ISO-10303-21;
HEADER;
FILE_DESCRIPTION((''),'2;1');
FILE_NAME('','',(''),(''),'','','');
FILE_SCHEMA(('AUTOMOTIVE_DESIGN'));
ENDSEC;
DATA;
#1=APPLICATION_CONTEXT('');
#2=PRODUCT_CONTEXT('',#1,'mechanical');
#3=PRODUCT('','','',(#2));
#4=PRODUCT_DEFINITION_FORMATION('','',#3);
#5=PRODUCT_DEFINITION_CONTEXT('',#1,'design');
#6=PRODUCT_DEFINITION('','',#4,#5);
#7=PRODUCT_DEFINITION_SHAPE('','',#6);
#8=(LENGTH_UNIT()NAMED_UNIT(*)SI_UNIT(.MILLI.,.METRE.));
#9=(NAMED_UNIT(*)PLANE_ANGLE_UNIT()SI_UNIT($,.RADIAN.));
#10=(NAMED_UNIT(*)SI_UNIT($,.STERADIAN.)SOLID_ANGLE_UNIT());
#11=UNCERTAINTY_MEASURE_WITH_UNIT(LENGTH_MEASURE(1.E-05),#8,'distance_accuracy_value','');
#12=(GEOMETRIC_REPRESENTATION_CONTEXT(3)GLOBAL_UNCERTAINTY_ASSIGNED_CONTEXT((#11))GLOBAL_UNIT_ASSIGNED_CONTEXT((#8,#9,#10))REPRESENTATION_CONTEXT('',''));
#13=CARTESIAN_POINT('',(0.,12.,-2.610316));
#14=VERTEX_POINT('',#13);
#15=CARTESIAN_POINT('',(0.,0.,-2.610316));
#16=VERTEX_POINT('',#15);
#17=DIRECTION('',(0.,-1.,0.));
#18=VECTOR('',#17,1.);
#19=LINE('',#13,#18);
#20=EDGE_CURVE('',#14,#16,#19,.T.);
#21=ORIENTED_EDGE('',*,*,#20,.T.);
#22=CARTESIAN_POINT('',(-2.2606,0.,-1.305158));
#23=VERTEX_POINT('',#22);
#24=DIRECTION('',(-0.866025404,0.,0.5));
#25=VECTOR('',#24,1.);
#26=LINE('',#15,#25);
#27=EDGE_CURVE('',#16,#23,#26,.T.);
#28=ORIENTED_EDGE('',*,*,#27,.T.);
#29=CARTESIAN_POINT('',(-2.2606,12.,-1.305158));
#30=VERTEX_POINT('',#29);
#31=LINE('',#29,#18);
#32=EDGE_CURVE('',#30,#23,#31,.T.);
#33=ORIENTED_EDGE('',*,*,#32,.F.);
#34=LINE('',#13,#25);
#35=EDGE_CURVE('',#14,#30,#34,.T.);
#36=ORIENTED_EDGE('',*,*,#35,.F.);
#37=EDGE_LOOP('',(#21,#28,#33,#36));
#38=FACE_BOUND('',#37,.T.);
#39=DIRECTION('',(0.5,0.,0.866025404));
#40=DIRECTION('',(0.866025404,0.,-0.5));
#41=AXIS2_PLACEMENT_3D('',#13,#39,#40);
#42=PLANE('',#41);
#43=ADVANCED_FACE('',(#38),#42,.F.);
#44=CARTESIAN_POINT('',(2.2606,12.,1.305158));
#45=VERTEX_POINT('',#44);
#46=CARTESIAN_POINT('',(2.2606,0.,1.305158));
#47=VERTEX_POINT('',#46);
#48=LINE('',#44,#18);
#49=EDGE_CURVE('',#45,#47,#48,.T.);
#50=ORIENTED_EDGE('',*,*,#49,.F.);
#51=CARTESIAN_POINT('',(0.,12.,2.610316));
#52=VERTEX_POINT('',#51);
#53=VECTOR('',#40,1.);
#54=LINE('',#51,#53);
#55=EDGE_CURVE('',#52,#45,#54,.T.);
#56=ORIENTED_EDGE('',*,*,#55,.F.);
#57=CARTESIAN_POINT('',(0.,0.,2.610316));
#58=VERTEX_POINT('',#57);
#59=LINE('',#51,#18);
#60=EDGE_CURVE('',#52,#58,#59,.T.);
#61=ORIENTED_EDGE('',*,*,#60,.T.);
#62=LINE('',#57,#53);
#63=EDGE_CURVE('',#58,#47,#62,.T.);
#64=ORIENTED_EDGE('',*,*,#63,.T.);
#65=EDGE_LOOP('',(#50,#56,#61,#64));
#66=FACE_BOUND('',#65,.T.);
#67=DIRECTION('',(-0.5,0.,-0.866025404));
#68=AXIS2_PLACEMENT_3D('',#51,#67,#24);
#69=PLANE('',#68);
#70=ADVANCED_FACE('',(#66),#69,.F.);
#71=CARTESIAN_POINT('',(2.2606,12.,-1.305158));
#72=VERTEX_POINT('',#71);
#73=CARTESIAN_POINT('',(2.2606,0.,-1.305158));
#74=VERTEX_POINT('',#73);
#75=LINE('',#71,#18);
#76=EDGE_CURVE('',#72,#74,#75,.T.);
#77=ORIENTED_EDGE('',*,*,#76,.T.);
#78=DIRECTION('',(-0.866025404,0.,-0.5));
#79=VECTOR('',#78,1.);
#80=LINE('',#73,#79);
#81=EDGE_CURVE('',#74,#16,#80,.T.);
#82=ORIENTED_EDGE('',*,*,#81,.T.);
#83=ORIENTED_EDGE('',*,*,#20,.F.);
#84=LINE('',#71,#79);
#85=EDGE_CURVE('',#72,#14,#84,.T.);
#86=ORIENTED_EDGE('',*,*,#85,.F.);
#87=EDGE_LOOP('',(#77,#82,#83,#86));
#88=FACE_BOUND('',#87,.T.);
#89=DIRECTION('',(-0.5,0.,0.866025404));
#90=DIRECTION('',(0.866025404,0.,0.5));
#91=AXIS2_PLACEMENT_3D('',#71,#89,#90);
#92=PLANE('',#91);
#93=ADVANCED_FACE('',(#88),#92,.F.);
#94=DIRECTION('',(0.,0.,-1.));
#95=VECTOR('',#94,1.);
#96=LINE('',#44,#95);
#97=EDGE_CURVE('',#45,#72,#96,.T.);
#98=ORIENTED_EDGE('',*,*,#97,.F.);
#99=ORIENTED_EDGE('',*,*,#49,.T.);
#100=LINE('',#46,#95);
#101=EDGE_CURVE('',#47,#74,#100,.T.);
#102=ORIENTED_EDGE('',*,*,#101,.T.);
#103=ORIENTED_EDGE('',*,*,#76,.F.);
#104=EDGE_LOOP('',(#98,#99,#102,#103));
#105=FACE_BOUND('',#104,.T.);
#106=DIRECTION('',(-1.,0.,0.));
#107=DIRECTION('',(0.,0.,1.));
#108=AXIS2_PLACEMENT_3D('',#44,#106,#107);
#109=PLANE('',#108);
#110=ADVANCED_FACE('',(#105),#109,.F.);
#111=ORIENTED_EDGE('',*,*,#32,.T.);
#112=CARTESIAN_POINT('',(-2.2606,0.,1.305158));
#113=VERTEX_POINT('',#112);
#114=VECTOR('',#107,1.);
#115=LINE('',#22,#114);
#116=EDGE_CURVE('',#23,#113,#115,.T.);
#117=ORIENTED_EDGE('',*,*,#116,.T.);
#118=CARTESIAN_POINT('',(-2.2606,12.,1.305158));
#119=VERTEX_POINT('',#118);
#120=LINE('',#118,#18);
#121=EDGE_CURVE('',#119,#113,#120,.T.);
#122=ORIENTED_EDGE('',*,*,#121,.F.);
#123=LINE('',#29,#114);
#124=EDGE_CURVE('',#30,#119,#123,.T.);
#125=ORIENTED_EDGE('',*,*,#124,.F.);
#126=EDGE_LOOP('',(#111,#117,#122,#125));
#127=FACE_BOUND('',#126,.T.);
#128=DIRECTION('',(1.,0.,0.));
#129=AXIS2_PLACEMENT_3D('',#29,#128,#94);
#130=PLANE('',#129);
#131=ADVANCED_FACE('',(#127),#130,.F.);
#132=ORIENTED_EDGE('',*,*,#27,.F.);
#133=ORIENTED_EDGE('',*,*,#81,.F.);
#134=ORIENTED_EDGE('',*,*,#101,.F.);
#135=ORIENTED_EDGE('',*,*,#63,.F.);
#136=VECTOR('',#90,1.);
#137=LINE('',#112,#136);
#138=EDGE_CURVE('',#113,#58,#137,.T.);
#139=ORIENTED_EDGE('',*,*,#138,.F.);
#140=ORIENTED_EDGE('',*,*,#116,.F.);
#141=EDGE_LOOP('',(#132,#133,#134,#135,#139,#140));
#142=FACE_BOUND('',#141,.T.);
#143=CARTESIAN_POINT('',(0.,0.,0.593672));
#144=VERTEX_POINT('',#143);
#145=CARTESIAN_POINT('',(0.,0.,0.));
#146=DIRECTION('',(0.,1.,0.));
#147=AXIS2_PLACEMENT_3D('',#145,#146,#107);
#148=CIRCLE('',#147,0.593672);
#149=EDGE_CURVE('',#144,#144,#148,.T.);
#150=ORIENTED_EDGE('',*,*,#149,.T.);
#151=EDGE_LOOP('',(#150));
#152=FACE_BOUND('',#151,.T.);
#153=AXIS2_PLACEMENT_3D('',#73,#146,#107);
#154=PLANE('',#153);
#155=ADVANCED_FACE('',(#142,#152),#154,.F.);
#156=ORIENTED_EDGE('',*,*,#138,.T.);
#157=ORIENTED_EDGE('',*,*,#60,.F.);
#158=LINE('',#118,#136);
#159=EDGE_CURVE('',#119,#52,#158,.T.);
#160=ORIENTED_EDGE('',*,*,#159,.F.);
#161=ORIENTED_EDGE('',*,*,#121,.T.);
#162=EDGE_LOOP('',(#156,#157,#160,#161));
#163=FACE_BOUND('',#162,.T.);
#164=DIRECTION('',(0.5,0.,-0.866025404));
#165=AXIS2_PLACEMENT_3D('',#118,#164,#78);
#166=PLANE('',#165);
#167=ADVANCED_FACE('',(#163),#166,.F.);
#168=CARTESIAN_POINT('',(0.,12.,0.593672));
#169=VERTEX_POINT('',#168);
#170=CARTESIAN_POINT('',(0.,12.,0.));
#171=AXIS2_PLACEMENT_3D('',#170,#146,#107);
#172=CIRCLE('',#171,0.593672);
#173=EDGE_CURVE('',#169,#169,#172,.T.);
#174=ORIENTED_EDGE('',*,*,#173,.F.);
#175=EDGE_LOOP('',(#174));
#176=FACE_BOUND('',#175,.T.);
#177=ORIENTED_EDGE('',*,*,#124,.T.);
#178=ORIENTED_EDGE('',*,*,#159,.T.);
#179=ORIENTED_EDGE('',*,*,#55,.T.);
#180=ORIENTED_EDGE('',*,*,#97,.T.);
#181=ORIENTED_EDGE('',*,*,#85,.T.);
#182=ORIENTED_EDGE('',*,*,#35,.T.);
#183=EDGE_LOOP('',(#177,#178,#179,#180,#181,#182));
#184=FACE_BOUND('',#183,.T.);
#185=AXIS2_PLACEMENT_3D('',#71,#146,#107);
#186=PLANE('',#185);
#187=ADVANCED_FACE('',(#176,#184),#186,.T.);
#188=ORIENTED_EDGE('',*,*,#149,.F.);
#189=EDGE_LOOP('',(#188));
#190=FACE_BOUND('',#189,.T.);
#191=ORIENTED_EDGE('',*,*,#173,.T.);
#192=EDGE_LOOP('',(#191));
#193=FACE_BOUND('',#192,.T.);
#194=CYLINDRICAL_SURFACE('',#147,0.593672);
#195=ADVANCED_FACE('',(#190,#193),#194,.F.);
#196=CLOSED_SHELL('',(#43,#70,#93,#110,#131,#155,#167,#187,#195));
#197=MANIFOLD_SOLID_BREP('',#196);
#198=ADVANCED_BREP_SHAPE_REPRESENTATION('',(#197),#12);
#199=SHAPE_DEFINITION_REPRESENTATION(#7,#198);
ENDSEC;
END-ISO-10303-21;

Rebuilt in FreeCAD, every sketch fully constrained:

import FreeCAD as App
import Part
import Sketcher
from FreeCAD import Vector
Q = App.Units.Quantity


def add_polygon(sketch, points):
    """Adds a closed chain of lines whose ends are joined by coincident constraints."""
    first, n = sketch.GeometryCount, len(points)
    for a, b in zip(points, points[1:] + points[:1]):
        sketch.addGeometry(Part.LineSegment(App.Vector(*a, 0), App.Vector(*b, 0)), False)
    for i in range(n):
        sketch.addConstraint(Sketcher.Constraint("Coincident", first + i, 2, first + (i + 1) % n, 1))

doc = App.newDocument("Part")
body = doc.addObject("PartDesign::Body", "Body")

# Sketch on XZ plane
sketch1 = body.newObject("Sketcher::SketchObject", "Sketch")
sketch1.AttachmentSupport = (doc.getObject("XZ_Plane"), [""])
sketch1.MapMode = "FlatFace"
add_polygon(sketch1, [(2.3, -1.3), (0, -2.6), (-2.3, -1.3), (-2.3, 1.3), (0, 2.6), (2.3, 1.3)])  # lines 0-5
sketch1.addConstraint([
    Sketcher.Constraint("Vertical", 2),
    Sketcher.Constraint("Vertical", 5),
    Sketcher.Constraint("Symmetric", 0, 2, 3, 2, -1, 1),
    Sketcher.Constraint("Symmetric", 1, 2, 4, 2, -1, 1),
    Sketcher.Constraint("PointOnObject", 0, 2, -2),
    Sketcher.Constraint("Parallel", 0, 3),
    Sketcher.Constraint("Horizontal", 2, 2, 4, 2),
    Sketcher.Constraint("Angle", 0, Q("-150 deg")),
    Sketcher.Constraint("DistanceX", 1, 2, -1, 1, Q("2.2606 mm")),
    Sketcher.Constraint("DistanceY", 2, 1, 2, 2, Q("2.610316 mm")),
])
pad1 = body.newObject("PartDesign::Pad", "Pad")
pad1.Profile = sketch1
pad1.Length = 12
pad1.Reversed = True

# Sketch on XZ plane
sketch2 = body.newObject("Sketcher::SketchObject", "Sketch001")
sketch2.AttachmentSupport = (doc.getObject("XZ_Plane"), [""])
sketch2.MapMode = "FlatFace"
sketch2.AttachmentOffset = App.Placement(Vector(0, 0, -12), App.Rotation())
sketch2.addGeometry(Part.Circle(Vector(0, 0, 0), Vector(0, 0, 1), 0.6), False)
sketch2.addConstraint([
    Sketcher.Constraint("Coincident", 0, 3, -1, 1),
    Sketcher.Constraint("Diameter", 0, Q("1.187344 mm")),
])
pocket1 = body.newObject("PartDesign::Pocket", "Pocket")
pocket1.Profile = sketch2
pocket1.Type = "ThroughAll"
pocket1.Reversed = True

doc.recompute()
